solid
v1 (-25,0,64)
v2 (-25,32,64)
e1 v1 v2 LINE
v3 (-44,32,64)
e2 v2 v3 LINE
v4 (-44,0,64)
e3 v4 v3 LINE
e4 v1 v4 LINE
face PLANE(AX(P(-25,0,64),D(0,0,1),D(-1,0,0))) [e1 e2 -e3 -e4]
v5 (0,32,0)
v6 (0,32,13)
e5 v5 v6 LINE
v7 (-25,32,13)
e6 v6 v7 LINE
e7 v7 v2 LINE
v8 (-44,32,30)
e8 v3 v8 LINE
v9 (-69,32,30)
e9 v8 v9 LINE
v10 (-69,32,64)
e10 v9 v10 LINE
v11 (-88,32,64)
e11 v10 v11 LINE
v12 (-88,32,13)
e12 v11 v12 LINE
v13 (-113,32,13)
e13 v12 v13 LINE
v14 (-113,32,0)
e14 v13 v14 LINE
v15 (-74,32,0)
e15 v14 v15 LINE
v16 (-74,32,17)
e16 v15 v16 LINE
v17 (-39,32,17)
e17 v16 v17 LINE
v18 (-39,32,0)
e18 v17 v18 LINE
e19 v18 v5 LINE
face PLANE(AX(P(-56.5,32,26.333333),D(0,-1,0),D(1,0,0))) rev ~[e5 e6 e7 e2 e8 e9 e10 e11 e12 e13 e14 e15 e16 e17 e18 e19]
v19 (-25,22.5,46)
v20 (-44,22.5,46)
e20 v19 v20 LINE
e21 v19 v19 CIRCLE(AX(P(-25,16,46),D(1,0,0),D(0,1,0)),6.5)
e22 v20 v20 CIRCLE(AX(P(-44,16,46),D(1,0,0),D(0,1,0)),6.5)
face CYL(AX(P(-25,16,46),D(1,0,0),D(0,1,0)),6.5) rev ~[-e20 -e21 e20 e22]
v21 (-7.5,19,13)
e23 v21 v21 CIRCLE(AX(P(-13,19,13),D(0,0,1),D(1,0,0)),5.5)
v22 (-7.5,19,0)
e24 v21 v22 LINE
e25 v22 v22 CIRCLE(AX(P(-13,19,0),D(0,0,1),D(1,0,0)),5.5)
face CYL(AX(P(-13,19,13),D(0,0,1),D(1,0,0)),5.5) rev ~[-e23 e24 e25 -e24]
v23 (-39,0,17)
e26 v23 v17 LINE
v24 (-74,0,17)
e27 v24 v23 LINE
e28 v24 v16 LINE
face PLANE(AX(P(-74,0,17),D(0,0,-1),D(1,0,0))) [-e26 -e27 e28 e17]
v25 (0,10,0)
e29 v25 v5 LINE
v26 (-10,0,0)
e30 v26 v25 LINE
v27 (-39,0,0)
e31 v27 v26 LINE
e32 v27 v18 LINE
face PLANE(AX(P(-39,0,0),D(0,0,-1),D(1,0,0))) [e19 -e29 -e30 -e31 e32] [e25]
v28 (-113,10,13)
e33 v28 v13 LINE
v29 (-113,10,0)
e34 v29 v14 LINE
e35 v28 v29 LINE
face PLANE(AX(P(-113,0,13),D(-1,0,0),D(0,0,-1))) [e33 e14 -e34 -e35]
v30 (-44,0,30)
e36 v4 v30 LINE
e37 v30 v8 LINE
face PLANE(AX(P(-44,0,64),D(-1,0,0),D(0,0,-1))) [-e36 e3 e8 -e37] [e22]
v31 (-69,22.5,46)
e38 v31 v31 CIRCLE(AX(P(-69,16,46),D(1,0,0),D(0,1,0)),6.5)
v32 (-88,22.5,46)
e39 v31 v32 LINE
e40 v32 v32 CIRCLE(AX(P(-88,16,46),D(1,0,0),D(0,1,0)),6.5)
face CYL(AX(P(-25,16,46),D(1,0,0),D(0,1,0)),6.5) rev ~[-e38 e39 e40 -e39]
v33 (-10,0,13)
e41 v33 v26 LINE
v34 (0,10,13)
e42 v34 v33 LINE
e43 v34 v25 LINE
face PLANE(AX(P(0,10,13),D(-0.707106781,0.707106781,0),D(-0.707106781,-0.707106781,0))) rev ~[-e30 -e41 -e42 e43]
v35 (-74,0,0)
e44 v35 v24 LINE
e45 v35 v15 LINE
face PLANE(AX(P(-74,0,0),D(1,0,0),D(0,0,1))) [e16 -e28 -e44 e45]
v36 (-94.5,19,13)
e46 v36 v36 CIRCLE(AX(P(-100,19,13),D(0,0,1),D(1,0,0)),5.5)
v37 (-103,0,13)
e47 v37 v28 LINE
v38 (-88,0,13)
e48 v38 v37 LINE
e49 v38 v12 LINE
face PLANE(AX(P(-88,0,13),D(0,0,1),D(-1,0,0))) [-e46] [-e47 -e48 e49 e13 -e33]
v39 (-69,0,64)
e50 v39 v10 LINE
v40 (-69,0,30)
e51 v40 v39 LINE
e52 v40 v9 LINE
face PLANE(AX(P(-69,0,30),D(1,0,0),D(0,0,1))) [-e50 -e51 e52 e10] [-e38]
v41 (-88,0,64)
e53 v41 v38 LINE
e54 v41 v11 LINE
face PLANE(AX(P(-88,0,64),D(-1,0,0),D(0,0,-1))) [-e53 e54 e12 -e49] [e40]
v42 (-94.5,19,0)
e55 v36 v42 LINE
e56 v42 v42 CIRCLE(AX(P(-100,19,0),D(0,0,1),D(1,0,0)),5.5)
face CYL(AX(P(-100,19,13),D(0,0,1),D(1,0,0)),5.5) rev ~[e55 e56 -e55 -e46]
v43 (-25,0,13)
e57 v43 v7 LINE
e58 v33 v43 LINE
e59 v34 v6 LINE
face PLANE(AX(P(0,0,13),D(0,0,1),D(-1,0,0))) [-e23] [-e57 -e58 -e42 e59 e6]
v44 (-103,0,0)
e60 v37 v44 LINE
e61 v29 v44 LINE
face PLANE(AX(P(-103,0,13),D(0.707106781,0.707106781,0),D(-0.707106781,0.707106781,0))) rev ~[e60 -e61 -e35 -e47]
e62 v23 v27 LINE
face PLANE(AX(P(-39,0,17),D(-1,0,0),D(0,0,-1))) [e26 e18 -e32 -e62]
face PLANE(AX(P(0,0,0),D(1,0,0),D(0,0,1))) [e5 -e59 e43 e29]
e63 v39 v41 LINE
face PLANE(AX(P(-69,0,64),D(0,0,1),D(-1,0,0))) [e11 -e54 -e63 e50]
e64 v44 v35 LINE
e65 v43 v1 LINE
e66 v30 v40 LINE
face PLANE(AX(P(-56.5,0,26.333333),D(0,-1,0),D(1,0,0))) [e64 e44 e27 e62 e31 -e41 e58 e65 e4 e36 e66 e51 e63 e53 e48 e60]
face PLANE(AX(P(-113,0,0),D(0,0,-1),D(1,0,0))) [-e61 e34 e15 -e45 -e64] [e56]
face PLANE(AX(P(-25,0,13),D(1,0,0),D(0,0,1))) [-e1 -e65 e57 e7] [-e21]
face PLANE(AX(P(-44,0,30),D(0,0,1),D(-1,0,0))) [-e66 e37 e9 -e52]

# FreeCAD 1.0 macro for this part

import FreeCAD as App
import Part
import Sketcher
from FreeCAD import Vector


def add_polygon(sketch, points):
    """Adds a closed chain of lines whose ends are joined by coincident constraints."""
    first, n = sketch.GeometryCount, len(points)
    for a, b in zip(points, points[1:] + points[:1]):
        sketch.addGeometry(Part.LineSegment(App.Vector(*a, 0), App.Vector(*b, 0)), False)
    for i in range(n):
        sketch.addConstraint(Sketcher.Constraint("Coincident", first + i, 2, first + (i + 1) % n, 1))

doc = App.newDocument("Part")
body = doc.addObject("PartDesign::Body", "Body")

sketch1 = doc.addObject("Sketcher::SketchObject", "Sketch")
body.addObject(sketch1)
sketch1.AttachmentSupport = (doc.XZ_Plane, [""])
sketch1.MapMode = "FlatFace"
add_polygon(sketch1, [(-39, 0), (0, 0), (0, 13), (-25, 13), (-25, 64), (-44, 64), (-44, 30), (-69, 30), (-69, 64), (-88, 64), (-88, 13), (-113, 13), (-113, 0), (-74, 0), (-74, 17), (-39, 17)])
sketch1.addConstraint([
    Sketcher.Constraint("Horizontal", 0),
    Sketcher.Constraint("Vertical", 1),
    Sketcher.Constraint("Horizontal", 2),
    Sketcher.Constraint("Vertical", 3),
    Sketcher.Constraint("Horizontal", 4),
    Sketcher.Constraint("Vertical", 5),
    Sketcher.Constraint("Horizontal", 6),
    Sketcher.Constraint("Vertical", 7),
    Sketcher.Constraint("Horizontal", 8),
    Sketcher.Constraint("Vertical", 9),
    Sketcher.Constraint("Horizontal", 10),
    Sketcher.Constraint("Vertical", 11),
    Sketcher.Constraint("Horizontal", 12),
    Sketcher.Constraint("Vertical", 13),
    Sketcher.Constraint("Horizontal", 14),
    Sketcher.Constraint("Vertical", 15),
    Sketcher.Constraint("Coincident", 0, 2, -1, 1),
    Sketcher.Constraint("PointOnObject", 11, 2, -1),
    Sketcher.Constraint("Horizontal", 4, 2, 7, 2),
    Sketcher.Constraint("Horizontal", 2, 2, 9, 2),
    Sketcher.Constraint("Equal", 2, 6),
    Sketcher.Constraint("Equal", 4, 8),
    Sketcher.Constraint("Equal", 6, 10),
    Sketcher.Constraint("Equal", 0, 12),
    Sketcher.Constraint("DistanceX", 0, 1, 0, 2, 39.0),
    Sketcher.Constraint("DistanceX", 2, 2, 2, 1, 25.0),
    Sketcher.Constraint("DistanceX", 4, 2, 4, 1, 19.0),
    Sketcher.Constraint("DistanceY", 1, 1, 1, 2, 13.0),
    Sketcher.Constraint("DistanceY", 3, 1, 3, 2, 51.0),
    Sketcher.Constraint("DistanceY", 5, 2, 5, 1, 34.0),
    Sketcher.Constraint("DistanceY", 13, 1, 13, 2, 17.0),
])
pad1 = doc.addObject("PartDesign::Pad", "Pad")
body.addObject(pad1)
pad1.Profile = sketch1
pad1.Length = 32
pad1.Reversed = True

sketch2 = doc.addObject("Sketcher::SketchObject", "Sketch001")
body.addObject(sketch2)
sketch2.AttachmentSupport = (doc.XY_Plane, [""])
sketch2.MapMode = "FlatFace"
sketch2.AttachmentOffset = App.Placement(Vector(0, 0, 13), App.Rotation())
sketch2.addGeometry([
    Part.Circle(Vector(-13, 19, 0), Vector(0, 0, 1), 6),
    Part.Circle(Vector(-100, 19, 0), Vector(0, 0, 1), 6),
], False)
sketch2.addConstraint([
    Sketcher.Constraint("Equal", 0, 1),
    Sketcher.Constraint("Horizontal", 0, 3, 1, 3),
    Sketcher.Constraint("Diameter", 0, 11.0),
    Sketcher.Constraint("DistanceX", 0, 3, -1, 1, 13.0),
    Sketcher.Constraint("DistanceY", -1, 1, 0, 3, 19.0),
    Sketcher.Constraint("DistanceX", 1, 3, -1, 1, 100.0),
])
pocket1 = doc.addObject("PartDesign::Pocket", "Pocket")
body.addObject(pocket1)
pocket1.Profile = sketch2
pocket1.Type = "ThroughAll"

sketch3 = doc.addObject("Sketcher::SketchObject", "Sketch002")
body.addObject(sketch3)
sketch3.AttachmentSupport = (doc.XY_Plane, [""])
sketch3.MapMode = "FlatFace"
sketch3.AttachmentOffset = App.Placement(Vector(0, 0, 13), App.Rotation())
add_polygon(sketch3, [(-113, 10), (-113, 0), (-103, 0)])
add_polygon(sketch3, [(-10, 0), (0, 0), (0, 10)])
sketch3.addConstraint([
    Sketcher.Constraint("Vertical", 0),
    Sketcher.Constraint("Horizontal", 1),
    Sketcher.Constraint("Horizontal", 3),
    Sketcher.Constraint("Vertical", 4),
    Sketcher.Constraint("Coincident", 3, 2, -1, 1),
    Sketcher.Constraint("PointOnObject", 0, 2, -1),
    Sketcher.Constraint("Perpendicular", 2, 5),
    Sketcher.Constraint("Horizontal", 2, 2, 4, 2),
    Sketcher.Constraint("Equal", 1, 3),
    Sketcher.Constraint("DistanceX", 1, 1, 1, 2, 10.0),
    Sketcher.Constraint("DistanceX", 0, 2, -1, 1, 113.0),
])
pocket2 = doc.addObject("PartDesign::Pocket", "Pocket001")
body.addObject(pocket2)
pocket2.Profile = sketch3
pocket2.Type = "ThroughAll"

sketch4 = doc.addObject("Sketcher::SketchObject", "Sketch003")
body.addObject(sketch4)
sketch4.AttachmentSupport = (doc.YZ_Plane, [""])
sketch4.MapMode = "FlatFace"
sketch4.AttachmentOffset = App.Placement(Vector(0, 0, -25), App.Rotation())
sketch4.addGeometry(Part.Circle(Vector(16, 46, 0), Vector(0, 0, 1), 6), False)
sketch4.addConstraint([
    Sketcher.Constraint("Diameter", 0, 13.0),
    Sketcher.Constraint("DistanceX", -1, 1, 0, 3, 16.0),
    Sketcher.Constraint("DistanceY", -1, 1, 0, 3, 46.0),
])
pocket3 = doc.addObject("PartDesign::Pocket", "Pocket002")
body.addObject(pocket3)
pocket3.Profile = sketch4
pocket3.Type = "ThroughAll"

doc.recompute()
